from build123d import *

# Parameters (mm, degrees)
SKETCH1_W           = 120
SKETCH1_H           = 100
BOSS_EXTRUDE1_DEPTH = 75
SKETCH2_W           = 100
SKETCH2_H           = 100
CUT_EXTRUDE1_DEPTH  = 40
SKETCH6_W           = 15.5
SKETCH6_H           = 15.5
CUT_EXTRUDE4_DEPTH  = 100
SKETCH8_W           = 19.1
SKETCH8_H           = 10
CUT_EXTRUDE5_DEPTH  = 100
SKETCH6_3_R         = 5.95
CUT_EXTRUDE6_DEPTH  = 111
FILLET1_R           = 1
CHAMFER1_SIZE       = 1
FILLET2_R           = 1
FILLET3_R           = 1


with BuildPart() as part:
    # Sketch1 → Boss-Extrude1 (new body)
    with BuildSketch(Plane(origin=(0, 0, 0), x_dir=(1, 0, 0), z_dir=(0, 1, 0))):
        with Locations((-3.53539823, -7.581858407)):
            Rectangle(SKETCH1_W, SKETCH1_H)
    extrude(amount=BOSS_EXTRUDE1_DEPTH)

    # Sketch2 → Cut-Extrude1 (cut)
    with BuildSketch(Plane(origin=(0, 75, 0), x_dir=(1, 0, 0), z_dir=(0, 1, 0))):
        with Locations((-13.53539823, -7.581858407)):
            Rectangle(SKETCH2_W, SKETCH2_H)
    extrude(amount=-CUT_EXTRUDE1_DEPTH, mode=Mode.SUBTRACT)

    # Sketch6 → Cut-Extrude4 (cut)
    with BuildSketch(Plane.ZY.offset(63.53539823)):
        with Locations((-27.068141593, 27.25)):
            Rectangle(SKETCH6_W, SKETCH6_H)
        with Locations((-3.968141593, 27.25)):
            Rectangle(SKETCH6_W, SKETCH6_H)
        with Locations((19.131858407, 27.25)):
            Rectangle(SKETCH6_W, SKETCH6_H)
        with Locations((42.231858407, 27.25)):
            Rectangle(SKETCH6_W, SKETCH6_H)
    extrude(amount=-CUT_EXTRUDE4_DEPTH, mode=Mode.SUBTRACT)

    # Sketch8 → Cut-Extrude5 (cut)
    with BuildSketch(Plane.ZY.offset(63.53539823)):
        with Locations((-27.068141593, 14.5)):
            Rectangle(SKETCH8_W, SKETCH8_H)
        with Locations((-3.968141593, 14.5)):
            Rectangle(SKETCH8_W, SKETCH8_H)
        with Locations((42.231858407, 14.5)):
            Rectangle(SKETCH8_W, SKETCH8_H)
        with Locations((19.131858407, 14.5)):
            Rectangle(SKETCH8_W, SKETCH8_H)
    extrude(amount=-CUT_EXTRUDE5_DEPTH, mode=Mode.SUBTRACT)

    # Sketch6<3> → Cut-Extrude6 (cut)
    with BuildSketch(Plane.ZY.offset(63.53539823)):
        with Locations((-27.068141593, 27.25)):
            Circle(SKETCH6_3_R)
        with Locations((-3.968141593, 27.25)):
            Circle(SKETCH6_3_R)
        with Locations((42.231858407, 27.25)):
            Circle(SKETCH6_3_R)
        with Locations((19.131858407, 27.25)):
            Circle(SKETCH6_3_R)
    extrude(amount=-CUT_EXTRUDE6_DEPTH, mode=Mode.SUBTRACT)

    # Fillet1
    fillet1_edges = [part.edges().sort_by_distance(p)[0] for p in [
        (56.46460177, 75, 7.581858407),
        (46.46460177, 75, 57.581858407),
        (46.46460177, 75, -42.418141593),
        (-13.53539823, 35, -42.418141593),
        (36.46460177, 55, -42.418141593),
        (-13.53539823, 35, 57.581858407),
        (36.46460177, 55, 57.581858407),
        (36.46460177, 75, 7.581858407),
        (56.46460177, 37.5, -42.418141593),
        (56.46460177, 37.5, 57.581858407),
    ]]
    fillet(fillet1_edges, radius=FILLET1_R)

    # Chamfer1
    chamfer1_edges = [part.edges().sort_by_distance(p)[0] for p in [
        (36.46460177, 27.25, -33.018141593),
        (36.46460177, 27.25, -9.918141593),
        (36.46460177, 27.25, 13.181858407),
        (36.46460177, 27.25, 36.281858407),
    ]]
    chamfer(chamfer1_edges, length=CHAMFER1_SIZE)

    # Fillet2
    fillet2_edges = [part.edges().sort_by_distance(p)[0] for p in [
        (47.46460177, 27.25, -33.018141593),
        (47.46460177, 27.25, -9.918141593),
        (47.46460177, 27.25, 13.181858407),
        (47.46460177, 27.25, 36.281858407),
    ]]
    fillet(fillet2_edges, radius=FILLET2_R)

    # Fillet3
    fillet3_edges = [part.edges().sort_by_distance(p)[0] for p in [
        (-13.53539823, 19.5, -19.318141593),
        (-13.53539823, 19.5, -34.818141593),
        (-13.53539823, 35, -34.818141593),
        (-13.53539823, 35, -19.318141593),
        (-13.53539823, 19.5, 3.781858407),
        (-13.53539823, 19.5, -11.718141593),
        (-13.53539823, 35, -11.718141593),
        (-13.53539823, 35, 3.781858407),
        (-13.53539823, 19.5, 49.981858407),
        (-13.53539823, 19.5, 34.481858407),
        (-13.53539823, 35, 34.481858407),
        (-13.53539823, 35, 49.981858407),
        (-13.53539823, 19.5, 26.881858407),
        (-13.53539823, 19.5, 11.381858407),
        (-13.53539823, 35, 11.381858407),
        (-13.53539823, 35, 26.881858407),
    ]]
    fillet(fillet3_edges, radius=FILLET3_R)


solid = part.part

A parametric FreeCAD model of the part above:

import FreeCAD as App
import Part
import Sketcher
from FreeCAD import Vector


def edges_at(feature, points):
    """Names of the edges that pass closest to the given points."""
    edges = feature.Shape.Edges
    near = lambda p: min(range(len(edges)), key=lambda i: edges[i].distToShape(Part.Vertex(*p))[0])
    return sorted({f"Edge{near(p) + 1}" for p in points})


def add_polygon(sketch, points):
    """Adds a closed chain of lines whose ends are joined by coincident constraints."""
    first, n = sketch.GeometryCount, len(points)
    for a, b in zip(points, points[1:] + points[:1]):
        sketch.addGeometry(Part.LineSegment(App.Vector(*a, 0), App.Vector(*b, 0)), False)
    for i in range(n):
        sketch.addConstraint(Sketcher.Constraint("Coincident", first + i, 2, first + (i + 1) % n, 1))

doc = App.newDocument("Part")
body = doc.addObject("PartDesign::Body", "Body")

sketch1 = doc.addObject("Sketcher::SketchObject", "Sketch")
body.addObject(sketch1)
sketch1.AttachmentSupport = (doc.XZ_Plane, [""])
sketch1.MapMode = "FlatFace"
add_polygon(sketch1, [(-64, -42), (-64, 58), (56, 58), (56, -42)])
sketch1.addConstraint([
    Sketcher.Constraint("Vertical", 0),
    Sketcher.Constraint("Horizontal", 1),
    Sketcher.Constraint("Vertical", 2),
    Sketcher.Constraint("Horizontal", 3),
    Sketcher.Constraint("DistanceX", 1, 1, 1, 2, 120.0),
    Sketcher.Constraint("DistanceY", 0, 1, 0, 2, 100.0),
    Sketcher.Constraint("DistanceX", 0, 2, -1, 1, 63.535398),
    Sketcher.Constraint("DistanceY", -1, 1, 0, 2, 57.581858),
])
pad1 = doc.addObject("PartDesign::Pad", "Pad")
body.addObject(pad1)
pad1.Profile = sketch1
pad1.Length = 75
pad1.Reversed = True

sketch2 = doc.addObject("Sketcher::SketchObject", "Sketch001")
body.addObject(sketch2)
sketch2.AttachmentSupport = (doc.XZ_Plane, [""])
sketch2.MapMode = "FlatFace"
sketch2.AttachmentOffset = App.Placement(Vector(0, 0, -75), App.Rotation())
add_polygon(sketch2, [(-64, -42), (-64, 58), (36, 58), (36, -42)])
sketch2.addConstraint([
    Sketcher.Constraint("Vertical", 0),
    Sketcher.Constraint("Horizontal", 1),
    Sketcher.Constraint("Vertical", 2),
    Sketcher.Constraint("Horizontal", 3),
    Sketcher.Constraint("Equal", 3, 0),
    Sketcher.Constraint("DistanceX", 1, 1, 1, 2, 100.0),
    Sketcher.Constraint("DistanceX", 0, 2, -1, 1, 63.535398),
    Sketcher.Constraint("DistanceY", -1, 1, 0, 2, 57.581858),
])
pocket1 = doc.addObject("PartDesign::Pocket", "Pocket")
body.addObject(pocket1)
pocket1.Profile = sketch2
pocket1.Length = 40
pocket1.Reversed = True

sketch3 = doc.addObject("Sketcher::SketchObject", "Sketch002")
body.addObject(sketch3)
sketch3.AttachmentSupport = (doc.YZ_Plane, [""])
sketch3.MapMode = "FlatFace"
sketch3.AttachmentOffset = App.Placement(Vector(0, 0, -63.535398), App.Rotation())
add_polygon(sketch3, [(35, -35), (20, -35), (20, -19), (35, -19)])
add_polygon(sketch3, [(35, -12), (20, -12), (20, 4), (35, 4)])
add_polygon(sketch3, [(35, 11), (20, 11), (20, 27), (35, 27)])
add_polygon(sketch3, [(35, 34), (20, 34), (20, 50), (35, 50)])
sketch3.addConstraint([
    Sketcher.Constraint("Horizontal", 0),
    Sketcher.Constraint("Vertical", 1),
    Sketcher.Constraint("Horizontal", 2),
    Sketcher.Constraint("Vertical", 3),
    Sketcher.Constraint("Horizontal", 4),
    Sketcher.Constraint("Vertical", 5),
    Sketcher.Constraint("Horizontal", 6),
    Sketcher.Constraint("Vertical", 7),
    Sketcher.Constraint("Horizontal", 8),
    Sketcher.Constraint("Vertical", 9),
    Sketcher.Constraint("Horizontal", 10),
    Sketcher.Constraint("Vertical", 11),
    Sketcher.Constraint("Horizontal", 12),
    Sketcher.Constraint("Vertical", 13),
    Sketcher.Constraint("Horizontal", 14),
    Sketcher.Constraint("Vertical", 15),
    Sketcher.Constraint("Vertical", 1, 2, 4, 2),
    Sketcher.Constraint("Vertical", 3, 2, 6, 2),
    Sketcher.Constraint("Vertical", 5, 2, 8, 2),
    Sketcher.Constraint("Vertical", 7, 2, 10, 2),
    Sketcher.Constraint("Vertical", 9, 2, 12, 2),
    Sketcher.Constraint("Vertical", 11, 2, 14, 2),
    Sketcher.Constraint("Equal", 14, 1),
    Sketcher.Constraint("Equal", 3, 5),
    Sketcher.Constraint("Equal", 7, 9),
    Sketcher.Constraint("Equal", 11, 13),
    Sketcher.Constraint("DistanceX", 0, 2, 0, 1, 15.5),
    Sketcher.Constraint("DistanceX", -1, 1, 2, 2, 35.0),
    Sketcher.Constraint("DistanceY", 1, 2, 4, 2, 7.6),
    Sketcher.Constraint("DistanceY", 5, 2, 8, 2, 7.6),
    Sketcher.Constraint("DistanceY", 9, 2, 12, 2, 7.6),
    Sketcher.Constraint("DistanceY", 0, 2, -1, 1, 34.818142),
])
pocket2 = doc.addObject("PartDesign::Pocket", "Pocket001")
body.addObject(pocket2)
pocket2.Profile = sketch3
pocket2.Length = 100
pocket2.Reversed = True

sketch4 = doc.addObject("Sketcher::SketchObject", "Sketch003")
body.addObject(sketch4)
sketch4.AttachmentSupport = (doc.YZ_Plane, [""])
sketch4.MapMode = "FlatFace"
sketch4.AttachmentOffset = App.Placement(Vector(0, 0, -63.535398), App.Rotation())
add_polygon(sketch4, [(20, -37), (10, -37), (10, -18), (20, -18)])
add_polygon(sketch4, [(20, -14), (10, -14), (10, 6), (20, 6)])
add_polygon(sketch4, [(20, 33), (10, 33), (10, 52), (20, 52)])
add_polygon(sketch4, [(20, 10), (10, 10), (10, 29), (20, 29)])
sketch4.addConstraint([
    Sketcher.Constraint("Horizontal", 0),
    Sketcher.Constraint("Vertical", 1),
    Sketcher.Constraint("Horizontal", 2),
    Sketcher.Constraint("Vertical", 3),
    Sketcher.Constraint("Horizontal", 4),
    Sketcher.Constraint("Vertical", 5),
    Sketcher.Constraint("Horizontal", 6),
    Sketcher.Constraint("Vertical", 7),
    Sketcher.Constraint("Horizontal", 8),
    Sketcher.Constraint("Vertical", 9),
    Sketcher.Constraint("Horizontal", 10),
    Sketcher.Constraint("Vertical", 11),
    Sketcher.Constraint("Horizontal", 12),
    Sketcher.Constraint("Vertical", 13),
    Sketcher.Constraint("Horizontal", 14),
    Sketcher.Constraint("Vertical", 15),
    Sketcher.Constraint("Vertical", 1, 2, 4, 2),
    Sketcher.Constraint("Vertical", 3, 2, 6, 2),
    Sketcher.Constraint("Vertical", 5, 2, 8, 2),
    Sketcher.Constraint("Vertical", 7, 2, 10, 2),
    Sketcher.Constraint("Vertical", 9, 2, 12, 2),
    Sketcher.Constraint("Vertical", 11, 2, 14, 2),
    Sketcher.Constraint("Equal", 3, 5),
    Sketcher.Constraint("Equal", 7, 9),
    Sketcher.Constraint("Equal", 11, 13),
    Sketcher.Constraint("DistanceX", 0, 2, 0, 1, 10.0),
    Sketcher.Constraint("DistanceY", 1, 1, 1, 2, 19.1),
    Sketcher.Constraint("DistanceY", 1, 2, 4, 2, 4.0),
    Sketcher.Constraint("DistanceY", 5, 2, 12, 2, 4.0),
    Sketcher.Constraint("DistanceY", 13, 2, 8, 2, 4.0),
    Sketcher.Constraint("DistanceX", -1, 1, 0, 2, 9.5),
    Sketcher.Constraint("DistanceY", 0, 2, -1, 1, 36.618142),
])
pocket3 = doc.addObject("PartDesign::Pocket", "Pocket002")
body.addObject(pocket3)
pocket3.Profile = sketch4
pocket3.Length = 100
pocket3.Reversed = True

sketch5 = doc.addObject("Sketcher::SketchObject", "Sketch004")
body.addObject(sketch5)
sketch5.AttachmentSupport = (doc.YZ_Plane, [""])
sketch5.MapMode = "FlatFace"
sketch5.AttachmentOffset = App.Placement(Vector(0, 0, -63.535398), App.Rotation())
sketch5.addGeometry([
    Part.Circle(Vector(27, -27, 0), Vector(0, 0, 1), 6),
    Part.Circle(Vector(27, -4, 0), Vector(0, 0, 1), 6),
    Part.Circle(Vector(27, 42, 0), Vector(0, 0, 1), 6),
    Part.Circle(Vector(27, 19, 0), Vector(0, 0, 1), 6),
], False)
sketch5.addConstraint([
    Sketcher.Constraint("Equal", 0, 1),
    Sketcher.Constraint("Equal", 1, 2),
    Sketcher.Constraint("Equal", 2, 3),
    Sketcher.Constraint("Vertical", 0, 3, 1, 3),
    Sketcher.Constraint("Vertical", 1, 3, 2, 3),
    Sketcher.Constraint("Vertical", 2, 3, 3, 3),
    Sketcher.Constraint("Diameter", 0, 11.9),
    Sketcher.Constraint("DistanceY", 0, 3, 1, 3, 23.1),
    Sketcher.Constraint("DistanceY", 1, 3, 2, 3, 46.2),
    Sketcher.Constraint("DistanceY", 1, 3, 3, 3, 23.1),
    Sketcher.Constraint("DistanceX", -1, 1, 0, 3, 27.25),
    Sketcher.Constraint("DistanceY", 0, 3, -1, 1, 27.068142),
])
pocket4 = doc.addObject("PartDesign::Pocket", "Pocket003")
body.addObject(pocket4)
pocket4.Profile = sketch5
pocket4.Length = 111
pocket4.Reversed = True
doc.recompute()

fillet = doc.addObject("PartDesign::Fillet", "Fillet")
body.addObject(fillet)
fillet.Base = (pocket4, edges_at(pocket4, [
    (56.465, 75, 7.582),
    (46.465, 75, 57.582),
    (46.465, 75, -42.418),
    (-13.535, 35, -42.418),
    (36.465, 55, -42.418),
    (-13.535, 35, 57.582),
    (36.465, 55, 57.582),
    (36.465, 75, 7.582),
    (56.465, 37.5, -42.418),
    (56.465, 37.5, 57.582),
]))
fillet.Radius = 1
doc.recompute()

chamfer = doc.addObject("PartDesign::Chamfer", "Chamfer")
body.addObject(chamfer)
chamfer.Base = (fillet, edges_at(fillet, [
    (36.465, 27.25, -33.018),
    (36.465, 27.25, -9.918),
    (36.465, 27.25, 13.182),
    (36.465, 27.25, 36.282),
]))
chamfer.Size = 1
doc.recompute()

fillet2 = doc.addObject("PartDesign::Fillet", "Fillet001")
body.addObject(fillet2)
fillet2.Base = (chamfer, edges_at(chamfer, [
    (47.465, 27.25, -33.018),
    (47.465, 27.25, -9.918),
    (47.465, 27.25, 13.182),
    (47.465, 27.25, 36.282),
]))
fillet2.Radius = 1
doc.recompute()

fillet3 = doc.addObject("PartDesign::Fillet", "Fillet002")
body.addObject(fillet3)
fillet3.Base = (fillet2, edges_at(fillet2, [
    (-13.535, 19.5, -19.318),
    (-13.535, 19.5, -34.818),
    (-13.535, 35, -34.818),
    (-13.535, 35, -19.318),
    (-13.535, 19.5, 3.782),
    (-13.535, 19.5, -11.718),
    (-13.535, 35, -11.718),
    (-13.535, 35, 3.782),
    (-13.535, 19.5, 49.982),
    (-13.535, 19.5, 34.482),
    (-13.535, 35, 34.482),
    (-13.535, 35, 49.982),
    (-13.535, 19.5, 26.882),
    (-13.535, 19.5, 11.382),
    (-13.535, 35, 11.382),
    (-13.535, 35, 26.882),
]))
fillet3.Radius = 1

doc.recompute()
